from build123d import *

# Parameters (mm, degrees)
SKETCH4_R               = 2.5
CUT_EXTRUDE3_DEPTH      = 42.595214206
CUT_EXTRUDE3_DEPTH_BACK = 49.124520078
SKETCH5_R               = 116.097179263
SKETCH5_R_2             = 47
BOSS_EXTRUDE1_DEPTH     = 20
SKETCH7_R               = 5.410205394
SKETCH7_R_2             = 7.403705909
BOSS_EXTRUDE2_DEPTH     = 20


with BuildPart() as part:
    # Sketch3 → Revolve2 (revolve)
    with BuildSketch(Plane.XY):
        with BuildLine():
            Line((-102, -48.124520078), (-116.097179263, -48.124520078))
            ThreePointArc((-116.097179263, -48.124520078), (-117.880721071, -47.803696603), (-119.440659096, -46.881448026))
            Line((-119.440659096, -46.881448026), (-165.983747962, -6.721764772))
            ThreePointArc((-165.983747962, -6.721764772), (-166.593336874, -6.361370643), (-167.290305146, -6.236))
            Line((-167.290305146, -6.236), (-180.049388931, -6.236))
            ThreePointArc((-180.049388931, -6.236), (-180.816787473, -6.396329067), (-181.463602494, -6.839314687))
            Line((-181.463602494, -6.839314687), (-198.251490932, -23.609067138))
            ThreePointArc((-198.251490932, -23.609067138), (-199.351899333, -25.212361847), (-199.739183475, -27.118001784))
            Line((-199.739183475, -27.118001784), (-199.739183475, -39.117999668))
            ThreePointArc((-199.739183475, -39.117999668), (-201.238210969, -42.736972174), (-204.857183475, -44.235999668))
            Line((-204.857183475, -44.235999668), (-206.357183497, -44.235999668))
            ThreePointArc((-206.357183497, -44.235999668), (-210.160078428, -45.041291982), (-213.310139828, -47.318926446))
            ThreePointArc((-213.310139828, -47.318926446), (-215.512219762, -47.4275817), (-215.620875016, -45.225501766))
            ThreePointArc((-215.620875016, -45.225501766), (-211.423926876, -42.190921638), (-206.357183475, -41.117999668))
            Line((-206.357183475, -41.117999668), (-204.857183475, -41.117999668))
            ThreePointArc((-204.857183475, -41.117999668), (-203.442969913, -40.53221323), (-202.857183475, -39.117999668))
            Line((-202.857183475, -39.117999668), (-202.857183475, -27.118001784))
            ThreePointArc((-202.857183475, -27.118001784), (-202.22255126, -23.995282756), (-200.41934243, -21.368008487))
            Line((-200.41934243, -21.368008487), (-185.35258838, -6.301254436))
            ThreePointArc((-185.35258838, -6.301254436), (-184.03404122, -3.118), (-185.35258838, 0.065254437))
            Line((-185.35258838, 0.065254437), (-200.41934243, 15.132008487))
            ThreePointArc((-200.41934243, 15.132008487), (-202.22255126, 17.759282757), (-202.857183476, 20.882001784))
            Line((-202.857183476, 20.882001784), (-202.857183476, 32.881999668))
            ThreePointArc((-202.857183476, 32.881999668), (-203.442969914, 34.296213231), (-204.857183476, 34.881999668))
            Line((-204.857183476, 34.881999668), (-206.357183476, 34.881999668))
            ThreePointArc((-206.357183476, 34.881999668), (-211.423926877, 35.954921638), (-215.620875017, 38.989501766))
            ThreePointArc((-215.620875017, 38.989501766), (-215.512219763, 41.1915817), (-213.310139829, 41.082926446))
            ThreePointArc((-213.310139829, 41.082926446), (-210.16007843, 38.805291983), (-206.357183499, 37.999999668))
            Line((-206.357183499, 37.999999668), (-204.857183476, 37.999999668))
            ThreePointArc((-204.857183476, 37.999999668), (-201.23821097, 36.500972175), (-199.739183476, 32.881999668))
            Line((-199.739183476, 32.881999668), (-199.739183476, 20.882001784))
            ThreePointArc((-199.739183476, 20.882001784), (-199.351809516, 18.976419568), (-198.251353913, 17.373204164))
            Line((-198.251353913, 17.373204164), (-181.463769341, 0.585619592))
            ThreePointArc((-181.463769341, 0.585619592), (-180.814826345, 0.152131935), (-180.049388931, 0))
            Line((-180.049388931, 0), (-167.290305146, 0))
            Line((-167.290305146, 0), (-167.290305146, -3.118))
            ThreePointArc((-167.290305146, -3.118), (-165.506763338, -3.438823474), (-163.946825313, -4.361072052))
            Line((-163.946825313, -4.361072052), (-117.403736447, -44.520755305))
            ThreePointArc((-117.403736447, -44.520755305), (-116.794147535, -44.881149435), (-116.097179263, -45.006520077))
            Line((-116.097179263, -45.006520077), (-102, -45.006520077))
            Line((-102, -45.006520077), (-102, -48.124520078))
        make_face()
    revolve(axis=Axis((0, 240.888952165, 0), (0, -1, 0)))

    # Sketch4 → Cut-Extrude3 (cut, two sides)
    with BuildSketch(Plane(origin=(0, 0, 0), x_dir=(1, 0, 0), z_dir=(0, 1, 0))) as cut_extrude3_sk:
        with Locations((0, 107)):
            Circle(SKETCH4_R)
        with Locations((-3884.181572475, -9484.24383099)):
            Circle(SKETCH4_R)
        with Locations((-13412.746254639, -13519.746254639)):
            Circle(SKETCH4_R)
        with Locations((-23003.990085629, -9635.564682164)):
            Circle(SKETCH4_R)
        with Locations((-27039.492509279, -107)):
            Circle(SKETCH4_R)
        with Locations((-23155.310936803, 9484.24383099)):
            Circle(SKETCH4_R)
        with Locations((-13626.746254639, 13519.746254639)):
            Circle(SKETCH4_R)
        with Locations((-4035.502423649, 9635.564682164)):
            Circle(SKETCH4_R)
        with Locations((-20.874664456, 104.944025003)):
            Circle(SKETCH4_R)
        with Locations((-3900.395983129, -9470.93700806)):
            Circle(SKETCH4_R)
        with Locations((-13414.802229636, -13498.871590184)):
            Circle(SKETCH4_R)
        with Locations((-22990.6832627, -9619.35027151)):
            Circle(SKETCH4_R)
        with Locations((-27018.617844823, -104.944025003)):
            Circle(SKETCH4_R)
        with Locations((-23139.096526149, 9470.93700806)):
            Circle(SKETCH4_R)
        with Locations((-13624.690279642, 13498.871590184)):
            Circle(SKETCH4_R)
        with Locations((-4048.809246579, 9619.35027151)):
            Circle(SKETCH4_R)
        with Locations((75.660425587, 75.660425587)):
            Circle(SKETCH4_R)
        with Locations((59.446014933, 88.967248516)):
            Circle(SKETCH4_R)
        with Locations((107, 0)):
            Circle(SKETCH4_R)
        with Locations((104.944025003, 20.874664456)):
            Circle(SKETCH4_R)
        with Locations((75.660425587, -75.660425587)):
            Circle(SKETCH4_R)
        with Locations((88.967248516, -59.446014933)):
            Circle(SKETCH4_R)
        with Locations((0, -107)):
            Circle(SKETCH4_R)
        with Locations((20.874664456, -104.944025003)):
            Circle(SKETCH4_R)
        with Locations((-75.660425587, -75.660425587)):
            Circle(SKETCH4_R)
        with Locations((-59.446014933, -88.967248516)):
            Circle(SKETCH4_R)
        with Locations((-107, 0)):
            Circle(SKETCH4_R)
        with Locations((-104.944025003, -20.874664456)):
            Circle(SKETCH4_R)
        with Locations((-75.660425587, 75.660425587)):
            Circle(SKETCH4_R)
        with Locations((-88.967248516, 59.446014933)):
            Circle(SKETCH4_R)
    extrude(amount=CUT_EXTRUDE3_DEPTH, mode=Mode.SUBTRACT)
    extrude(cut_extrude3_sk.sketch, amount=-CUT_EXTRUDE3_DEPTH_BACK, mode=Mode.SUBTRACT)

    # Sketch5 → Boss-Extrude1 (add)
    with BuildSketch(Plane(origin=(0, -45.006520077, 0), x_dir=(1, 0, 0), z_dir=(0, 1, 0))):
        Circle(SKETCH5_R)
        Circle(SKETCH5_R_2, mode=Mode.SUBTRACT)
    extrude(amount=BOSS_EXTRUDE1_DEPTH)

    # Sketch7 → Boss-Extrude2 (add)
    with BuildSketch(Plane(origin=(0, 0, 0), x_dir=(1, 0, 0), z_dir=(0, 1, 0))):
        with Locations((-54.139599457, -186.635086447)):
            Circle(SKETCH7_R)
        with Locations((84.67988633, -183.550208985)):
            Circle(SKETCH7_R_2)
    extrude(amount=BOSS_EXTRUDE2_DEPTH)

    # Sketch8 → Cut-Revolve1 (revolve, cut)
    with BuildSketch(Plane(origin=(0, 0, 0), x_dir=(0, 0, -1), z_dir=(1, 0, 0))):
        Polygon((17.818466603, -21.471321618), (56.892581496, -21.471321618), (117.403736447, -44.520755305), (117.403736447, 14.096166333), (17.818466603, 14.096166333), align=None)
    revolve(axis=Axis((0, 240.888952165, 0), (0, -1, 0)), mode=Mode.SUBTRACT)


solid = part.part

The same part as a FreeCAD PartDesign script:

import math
import FreeCAD as App
import Part
import Sketcher
from FreeCAD import Vector

doc = App.newDocument("Part")
body = doc.addObject("PartDesign::Body", "Body")

sketch1 = body.newObject("Sketcher::SketchObject", "Sketch")
sketch1.AttachmentSupport = (doc.getObject("XY_Plane"), [""])
sketch1.MapMode = "FlatFace"
sketch1.addGeometry([
    Part.LineSegment(Vector(-116.1, -48.1, 0), Vector(-102, -48.1, 0)),
    Part.LineSegment(Vector(-102, -48.1, 0), Vector(-102, -45, 0)),
    Part.LineSegment(Vector(-102, -45, 0), Vector(-116.1, -45, 0)),
    Part.ArcOfCircle(Part.Circle(Vector(-116.1, -43, 0), Vector(0, 0, 1), 2), math.radians(-131), math.radians(-90)),
    Part.LineSegment(Vector(-117.4, -44.5, 0), Vector(-163.9, -4.4, 0)),
    Part.ArcOfCircle(Part.Circle(Vector(-167.3, -8.2, 0), Vector(0, 0, 1), 5.1), math.radians(49), math.radians(90)),
    Part.LineSegment(Vector(-167.3, -3.1, 0), Vector(-167.3, 0, 0)),
    Part.LineSegment(Vector(-167.3, 0, 0), Vector(-180, 0, 0)),
    Part.ArcOfCircle(Part.Circle(Vector(-180, 2, 0), Vector(0, 0, 1), 2), math.radians(-135), math.radians(-90)),
    Part.LineSegment(Vector(-181.5, 0.6, 0), Vector(-198.3, 17.4, 0)),
    Part.ArcOfCircle(Part.Circle(Vector(-194.9, 20.9, 0), Vector(0, 0, 1), 4.9), math.radians(-180), math.radians(-134)),
    Part.LineSegment(Vector(-199.7, 20.9, 0), Vector(-199.7, 32.9, 0)),
    Part.ArcOfCircle(Part.Circle(Vector(-204.9, 32.9, 0), Vector(0, 0, 1), 5.1), math.radians(0), math.radians(90)),
    Part.LineSegment(Vector(-204.9, 38, 0), Vector(-206.4, 38, 0)),
    Part.ArcOfCircle(Part.Circle(Vector(-206.4, 47.4, 0), Vector(0, 0, 1), 9.4), math.radians(-138), math.radians(-90)),
    Part.ArcOfCircle(Part.Circle(Vector(-214.5, 40, 0), Vector(0, 0, 1), 1.6), math.radians(42), math.radians(222)),
    Part.ArcOfCircle(Part.Circle(Vector(-206.4, 47.4, 0), Vector(0, 0, 1), 12.5), math.radians(-138), math.radians(-90)),
    Part.LineSegment(Vector(-206.4, 34.9, 0), Vector(-204.9, 34.9, 0)),
    Part.ArcOfCircle(Part.Circle(Vector(-204.9, 32.9, 0), Vector(0, 0, 1), 2), math.radians(0), math.radians(90)),
    Part.LineSegment(Vector(-202.9, 32.9, 0), Vector(-202.9, 20.9, 0)),
    Part.ArcOfCircle(Part.Circle(Vector(-194.9, 20.9, 0), Vector(0, 0, 1), 8), math.radians(180), math.radians(226)),
    Part.LineSegment(Vector(-200.4, 15.1, 0), Vector(-185.4, 0.1, 0)),
    Part.ArcOfCircle(Part.Circle(Vector(-188.5, -3.1, 0), Vector(0, 0, 1), 4.5), math.radians(-45), math.radians(45)),
    Part.LineSegment(Vector(-185.4, -6.3, 0), Vector(-200.4, -21.4, 0)),
    Part.ArcOfCircle(Part.Circle(Vector(-194.9, -27.1, 0), Vector(0, 0, 1), 8), math.radians(134), math.radians(180)),
    Part.LineSegment(Vector(-202.9, -27.1, 0), Vector(-202.9, -39.1, 0)),
    Part.ArcOfCircle(Part.Circle(Vector(-204.9, -39.1, 0), Vector(0, 0, 1), 2), math.radians(-90), math.radians(0)),
    Part.LineSegment(Vector(-204.9, -41.1, 0), Vector(-206.4, -41.1, 0)),
    Part.ArcOfCircle(Part.Circle(Vector(-206.4, -53.6, 0), Vector(0, 0, 1), 12.5), math.radians(90), math.radians(138)),
    Part.ArcOfCircle(Part.Circle(Vector(-214.5, -46.3, 0), Vector(0, 0, 1), 1.6), math.radians(138), math.radians(318)),
    Part.ArcOfCircle(Part.Circle(Vector(-206.4, -53.6, 0), Vector(0, 0, 1), 9.4), math.radians(90), math.radians(138)),
    Part.LineSegment(Vector(-206.4, -44.2, 0), Vector(-204.9, -44.2, 0)),
    Part.ArcOfCircle(Part.Circle(Vector(-204.9, -39.1, 0), Vector(0, 0, 1), 5.1), math.radians(-90), math.radians(0)),
    Part.LineSegment(Vector(-199.7, -39.1, 0), Vector(-199.7, -27.1, 0)),
    Part.ArcOfCircle(Part.Circle(Vector(-194.9, -27.1, 0), Vector(0, 0, 1), 4.9), math.radians(134), math.radians(180)),
    Part.LineSegment(Vector(-198.3, -23.6, 0), Vector(-181.5, -6.8, 0)),
    Part.ArcOfCircle(Part.Circle(Vector(-180, -8.2, 0), Vector(0, 0, 1), 2), math.radians(90), math.radians(136)),
    Part.LineSegment(Vector(-180, -6.2, 0), Vector(-167.3, -6.2, 0)),
    Part.ArcOfCircle(Part.Circle(Vector(-167.3, -8.2, 0), Vector(0, 0, 1), 2), math.radians(49), math.radians(90)),
    Part.LineSegment(Vector(-166, -6.7, 0), Vector(-119.4, -46.9, 0)),
    Part.ArcOfCircle(Part.Circle(Vector(-116.1, -43, 0), Vector(0, 0, 1), 5.1), math.radians(-131), math.radians(-90)),
], False)
sketch1.addConstraint([
    Sketcher.Constraint("Coincident", 0, 2, 1, 1),
    Sketcher.Constraint("Coincident", 1, 2, 2, 1),
    Sketcher.Constraint("Tangent", 2, 2, 3, 2),
    Sketcher.Constraint("Tangent", 3, 1, 4, 1),
    Sketcher.Constraint("Tangent", 4, 2, 5, 1),
    Sketcher.Constraint("Coincident", 5, 2, 6, 1),
    Sketcher.Constraint("Coincident", 6, 2, 7, 1),
    Sketcher.Constraint("Coincident", 7, 2, 8, 2),
    Sketcher.Constraint("Coincident", 8, 1, 9, 1),
    Sketcher.Constraint("Coincident", 9, 2, 10, 2),
    Sketcher.Constraint("Coincident", 10, 1, 11, 1),
    Sketcher.Constraint("Tangent", 11, 2, 12, 1),
    Sketcher.Constraint("Tangent", 12, 2, 13, 1),
    Sketcher.Constraint("Tangent", 13, 2, 14, 2),
    Sketcher.Constraint("Tangent", 14, 1, 15, 1),
    Sketcher.Constraint("Tangent", 15, 2, 16, 1),
    Sketcher.Constraint("Tangent", 16, 2, 17, 1),
    Sketcher.Constraint("Tangent", 17, 2, 18, 2),
    Sketcher.Constraint("Tangent", 18, 1, 19, 1),
    Sketcher.Constraint("Tangent", 19, 2, 20, 1),
    Sketcher.Constraint("Coincident", 20, 2, 21, 1),
    Sketcher.Constraint("Tangent", 21, 2, 22, 2),
    Sketcher.Constraint("Tangent", 22, 1, 23, 1),
    Sketcher.Constraint("Coincident", 23, 2, 24, 1),
    Sketcher.Constraint("Tangent", 24, 2, 25, 1),
    Sketcher.Constraint("Tangent", 25, 2, 26, 2),
    Sketcher.Constraint("Tangent", 26, 1, 27, 1),
    Sketcher.Constraint("Tangent", 27, 2, 28, 1),
    Sketcher.Constraint("Tangent", 28, 2, 29, 1),
    Sketcher.Constraint("Tangent", 29, 2, 30, 2),
    Sketcher.Constraint("Tangent", 30, 1, 31, 1),
    Sketcher.Constraint("Tangent", 31, 2, 32, 1),
    Sketcher.Constraint("Tangent", 32, 2, 33, 1),
    Sketcher.Constraint("Tangent", 33, 2, 34, 2),
    Sketcher.Constraint("Coincident", 34, 1, 35, 1),
    Sketcher.Constraint("Coincident", 35, 2, 36, 2),
    Sketcher.Constraint("Coincident", 36, 1, 37, 1),
    Sketcher.Constraint("Tangent", 37, 2, 38, 2),
    Sketcher.Constraint("Tangent", 38, 1, 39, 1),
    Sketcher.Constraint("Tangent", 39, 2, 40, 1),
    Sketcher.Constraint("Tangent", 40, 2, 0, 1),
    Sketcher.Constraint("Horizontal", 0),
    Sketcher.Constraint("Vertical", 1),
    Sketcher.Constraint("Horizontal", 2),
    Sketcher.Constraint("Vertical", 6),
    Sketcher.Constraint("Horizontal", 7),
    Sketcher.Constraint("Vertical", 11),
    Sketcher.Constraint("Horizontal", 13),
    Sketcher.Constraint("Horizontal", 17),
    Sketcher.Constraint("Vertical", 19),
    Sketcher.Constraint("Vertical", 25),
    Sketcher.Constraint("Horizontal", 27),
    Sketcher.Constraint("Horizontal", 31),
    Sketcher.Constraint("Vertical", 33),
    Sketcher.Constraint("Horizontal", 37),
    Sketcher.Constraint("Coincident", 16, 3, 14, 3),
    Sketcher.Constraint("Coincident", 18, 3, 12, 3),
    Sketcher.Constraint("Coincident", 30, 3, 28, 3),
    Sketcher.Constraint("Coincident", 32, 3, 26, 3),
    Sketcher.Constraint("Coincident", 34, 3, 24, 3),
    Sketcher.Constraint("Coincident", 38, 3, 5, 3),
    Sketcher.Constraint("Coincident", 40, 3, 3, 3),
    Sketcher.Constraint("Equal", 3, 8),
    Sketcher.Constraint("Equal", 5, 12),
    Sketcher.Constraint("Equal", 8, 18),
    Sketcher.Constraint("Equal", 20, 24),
    Sketcher.Constraint("Equal", 18, 26),
    Sketcher.Constraint("Equal", 16, 28),
    Sketcher.Constraint("Equal", 15, 29),
    Sketcher.Constraint("Equal", 10, 34),
    Sketcher.Constraint("Equal", 26, 36),
    Sketcher.Constraint("Equal", 36, 38),
    Sketcher.Constraint("Equal", 32, 40),
    Sketcher.Constraint("PointOnObject", 6, 2, -1),
    Sketcher.Constraint("Parallel", 9, 21),
    Sketcher.Constraint("Perpendicular", 21, 23),
    Sketcher.Constraint("Horizontal", 22, 3, 5, 2),
    Sketcher.Constraint("Horizontal", 10, 1, 19, 2),
    Sketcher.Constraint("Vertical", 20, 3, 24, 3),
    Sketcher.Constraint("Vertical", 16, 3, 28, 3),
    Sketcher.Constraint("Vertical", 15, 3, 29, 3),
    Sketcher.Constraint("Vertical", 38, 3, 5, 2),
    Sketcher.Constraint("Vertical", 21, 2, 22, 1),
    Sketcher.Constraint("Vertical", 20, 2, 23, 2),
    Sketcher.Constraint("Vertical", 7, 2, 36, 1),
    Sketcher.Constraint("Equal", 1, 6),
    Sketcher.Constraint("Equal", 19, 25),
    Sketcher.Constraint("Radius", 3, 2.0),
    Sketcher.Constraint("Radius", 20, 8.000002),
    Sketcher.Constraint("Radius", 16, 12.5),
    Sketcher.Constraint("DistanceX", 13, 2, 13, 1, 1.5),
    Sketcher.Constraint("DistanceX", 0, 2, -1, 1, 102.0),
    Sketcher.Constraint("DistanceY", -1, 1, 12, 2, 38.0),
    Sketcher.Constraint("Radius", 5, 5.118),
    Sketcher.Constraint("Radius", 22, 4.501802),
    Sketcher.Constraint("DistanceY", -1, 1, 20, 3, 20.881999),
    Sketcher.Constraint("DistanceX", 36, 3, -1, 1, 180.032002),
    Sketcher.Constraint("DistanceX", 0, 1, 0, 2, 14.097179),
    Sketcher.Constraint("DistanceY", -1, 1, 15, 2, 38.989502),
    Sketcher.Constraint("Distance", 9, 23.74123),
    Sketcher.Constraint("Distance", 35, 23.728839),
    Sketcher.Constraint("DistanceX", 7, 2, 7, 1, 12.759084),
    Sketcher.Constraint("DistanceY", 3, 3, -1, 1, 43.00652),
    Sketcher.Constraint("DistanceX", 10, 3, -1, 1, 194.857182),
    Sketcher.Constraint("DistanceY", -1, 1, 10, 3, 20.882269),
    Sketcher.Constraint("DistanceX", 7, 2, -1, 1, 180.049389),
    Sketcher.Constraint("DistanceX", 8, 1, -1, 1, 181.463769),
    Sketcher.Constraint("DistanceY", -1, 1, 20, 2, 15.132008),
    Sketcher.Constraint("DistanceX", 34, 1, -1, 1, 198.251491),
])
revolution = body.newObject("PartDesign::Revolution", "Revolution")
revolution.Profile = sketch1
revolution.ReferenceAxis = (sketch1, ["V_Axis"])
revolution.Angle = 360

sketch2 = body.newObject("Sketcher::SketchObject", "Sketch001")
sketch2.AttachmentSupport = (doc.getObject("XZ_Plane"), [""])
sketch2.MapMode = "FlatFace"
sketch2.addGeometry([
    Part.Circle(Vector(0, -107, 0), Vector(0, 0, 1), 2.5),
    Part.Circle(Vector(-3884.2, 9484.2, 0), Vector(0, 0, 1), 2.5),
    Part.Circle(Vector(-13412.7, 13519.7, 0), Vector(0, 0, 1), 2.5),
    Part.Circle(Vector(-23004, 9635.6, 0), Vector(0, 0, 1), 2.5),
    Part.Circle(Vector(-27039.5, 107, 0), Vector(0, 0, 1), 2.5),
    Part.Circle(Vector(-23155.3, -9484.2, 0), Vector(0, 0, 1), 2.5),
    Part.Circle(Vector(-13626.7, -13519.7, 0), Vector(0, 0, 1), 2.5),
    Part.Circle(Vector(-4035.5, -9635.6, 0), Vector(0, 0, 1), 2.5),
    Part.Circle(Vector(-20.9, -104.9, 0), Vector(0, 0, 1), 2.5),
    Part.Circle(Vector(-3900.4, 9470.9, 0), Vector(0, 0, 1), 2.5),
    Part.Circle(Vector(-13414.8, 13498.9, 0), Vector(0, 0, 1), 2.5),
    Part.Circle(Vector(-22990.7, 9619.4, 0), Vector(0, 0, 1), 2.5),
    Part.Circle(Vector(-27018.6, 104.9, 0), Vector(0, 0, 1), 2.5),
    Part.Circle(Vector(-23139.1, -9470.9, 0), Vector(0, 0, 1), 2.5),
    Part.Circle(Vector(-13624.7, -13498.9, 0), Vector(0, 0, 1), 2.5),
    Part.Circle(Vector(-4048.8, -9619.4, 0), Vector(0, 0, 1), 2.5),
    Part.Circle(Vector(75.7, -75.7, 0), Vector(0, 0, 1), 2.5),
    Part.Circle(Vector(59.4, -89, 0), Vector(0, 0, 1), 2.5),
    Part.Circle(Vector(107, 0, 0), Vector(0, 0, 1), 2.5),
    Part.Circle(Vector(104.9, -20.9, 0), Vector(0, 0, 1), 2.5),
    Part.Circle(Vector(75.7, 75.7, 0), Vector(0, 0, 1), 2.5),
    Part.Circle(Vector(89, 59.4, 0), Vector(0, 0, 1), 2.5),
    Part.Circle(Vector(0, 107, 0), Vector(0, 0, 1), 2.5),
    Part.Circle(Vector(20.9, 104.9, 0), Vector(0, 0, 1), 2.5),
    Part.Circle(Vector(-75.7, 75.7, 0), Vector(0, 0, 1), 2.5),
    Part.Circle(Vector(-59.4, 89, 0), Vector(0, 0, 1), 2.5),
    Part.Circle(Vector(-107, 0, 0), Vector(0, 0, 1), 2.5),
    Part.Circle(Vector(-104.9, 20.9, 0), Vector(0, 0, 1), 2.5),
    Part.Circle(Vector(-75.7, -75.7, 0), Vector(0, 0, 1), 2.5),
    Part.Circle(Vector(-89, -59.4, 0), Vector(0, 0, 1), 2.5),
], False)
sketch2.addConstraint([
    Sketcher.Constraint("Equal", 0, 1),
    Sketcher.Constraint("Equal", 1, 2),
    Sketcher.Constraint("Equal", 2, 3),
    Sketcher.Constraint("Equal", 3, 4),
    Sketcher.Constraint("Equal", 4, 5),
    Sketcher.Constraint("Equal", 5, 6),
    Sketcher.Constraint("Equal", 6, 7),
    Sketcher.Constraint("Equal", 7, 8),
    Sketcher.Constraint("Equal", 8, 9),
    Sketcher.Constraint("Equal", 9, 10),
    Sketcher.Constraint("Equal", 10, 11),
    Sketcher.Constraint("Equal", 11, 12),
    Sketcher.Constraint("Equal", 12, 13),
    Sketcher.Constraint("Equal", 13, 14),
    Sketcher.Constraint("Equal", 14, 15),
    Sketcher.Constraint("Equal", 15, 16),
    Sketcher.Constraint("Equal", 16, 17),
    Sketcher.Constraint("Equal", 17, 18),
    Sketcher.Constraint("Equal", 18, 19),
    Sketcher.Constraint("Equal", 19, 20),
    Sketcher.Constraint("Equal", 20, 21),
    Sketcher.Constraint("Equal", 21, 22),
    Sketcher.Constraint("Equal", 22, 23),
    Sketcher.Constraint("Equal", 23, 24),
    Sketcher.Constraint("Equal", 24, 25),
    Sketcher.Constraint("Equal", 25, 26),
    Sketcher.Constraint("Equal", 26, 27),
    Sketcher.Constraint("Equal", 27, 28),
    Sketcher.Constraint("Equal", 28, 29),
    Sketcher.Constraint("Symmetric", 0, 3, 22, 3, -1, 1),
    Sketcher.Constraint("Symmetric", 8, 3, 23, 3, -1, 1),
    Sketcher.Constraint("Symmetric", 16, 3, 24, 3, -1, 1),
    Sketcher.Constraint("Symmetric", 17, 3, 25, 3, -1, 1),
    Sketcher.Constraint("Symmetric", 18, 3, 26, 3, -1, 1),
    Sketcher.Constraint("Symmetric", 19, 3, 27, 3, -1, 1),
    Sketcher.Constraint("Symmetric", 20, 3, 28, 3, -1, 1),
    Sketcher.Constraint("Symmetric", 21, 3, 29, 3, -1, 1),
    Sketcher.Constraint("Symmetric", 20, 3, 24, 3, -2),
    Sketcher.Constraint("PointOnObject", 0, 3, -2),
    Sketcher.Constraint("PointOnObject", 18, 3, -1),
    Sketcher.Constraint("Horizontal", 4, 3, 22, 3),
    Sketcher.Constraint("Horizontal", 12, 3, 23, 3),
    Sketcher.Constraint("Diameter", 0, 5.0),
    Sketcher.Constraint("DistanceY", 0, 3, -1, 1, 107.0),
    Sketcher.Constraint("DistanceX", -1, 1, 18, 3, 107.0),
    Sketcher.Constraint("DistanceX", 1, 3, 16, 3, 3959.841998),
    Sketcher.Constraint("DistanceX", 9, 3, 17, 3, 3959.841998),
    Sketcher.Constraint("DistanceY", 8, 3, 16, 3, 29.283599),
    Sketcher.Constraint("DistanceX", 16, 3, 19, 3, 29.283599),
    Sketcher.Constraint("DistanceY", -1, 1, 1, 3, 9484.243831),
    Sketcher.Constraint("DistanceX", 4, 3, -1, 1, 27039.492509),
    Sketcher.Constraint("DistanceY", 5, 3, -1, 1, 9484.243831),
    Sketcher.Constraint("DistanceY", -1, 1, 9, 3, 9470.937008),
    Sketcher.Constraint("DistanceX", 10, 3, -1, 1, 13414.80223),
    Sketcher.Constraint("DistanceY", -1, 1, 10, 3, 13498.87159),
    Sketcher.Constraint("DistanceY", -1, 1, 11, 3, 9619.350272),
    Sketcher.Constraint("DistanceY", 13, 3, -1, 1, 9470.937008),
    Sketcher.Constraint("DistanceX", 14, 3, -1, 1, 13624.69028),
    Sketcher.Constraint("DistanceY", 14, 3, -1, 1, 13498.87159),
    Sketcher.Constraint("DistanceY", 15, 3, -1, 1, 9619.350272),
    Sketcher.Constraint("DistanceY", 17, 3, -1, 1, 88.967249),
    Sketcher.Constraint("DistanceX", -1, 1, 21, 3, 88.967249),
    Sketcher.Constraint("DistanceX", 3, 3, 2, 3, 9591.243831),
    Sketcher.Constraint("DistanceY", 1, 3, 3, 3, 151.320851),
    Sketcher.Constraint("DistanceX", 5, 3, 3, 3, 151.320851),
    Sketcher.Constraint("DistanceX", 3, 3, 6, 3, 9377.243831),
    Sketcher.Constraint("DistanceX", 6, 3, 7, 3, 9591.243831),
    Sketcher.Constraint("DistanceX", 7, 3, 1, 3, 151.320851),
    Sketcher.Constraint("DistanceY", 7, 3, 5, 3, 151.320851),
    Sketcher.Constraint("DistanceX", 1, 3, 8, 3, 3863.306908),
    Sketcher.Constraint("DistanceY", 8, 3, 2, 3, 13624.69028),
    Sketcher.Constraint("DistanceY", 6, 3, 8, 3, 13414.80223),
    Sketcher.Constraint("DistanceX", 9, 3, 1, 3, 16.214411),
    Sketcher.Constraint("DistanceX", 11, 3, 2, 3, 9577.937008),
    Sketcher.Constraint("DistanceX", 12, 3, 5, 3, 3863.306908),
    Sketcher.Constraint("DistanceX", 5, 3, 13, 3, 16.214411),
    Sketcher.Constraint("DistanceX", 6, 3, 15, 3, 9577.937008),
    Sketcher.Constraint("DistanceY", 16, 3, 19, 3, 54.785761),
    Sketcher.Constraint("DistanceY", 19, 3, 20, 3, 96.53509),
    Sketcher.Constraint("DistanceY", 21, 3, 20, 3, 16.214411),
    Sketcher.Constraint("DistanceX", 23, 3, 20, 3, 54.785761),
])
pocket1 = body.newObject("PartDesign::Pocket", "Pocket")
pocket1.Profile = sketch2
pocket1.Type = "ThroughAll"
pocket1.Midplane = True

sketch3 = body.newObject("Sketcher::SketchObject", "Sketch002")
sketch3.AttachmentSupport = (doc.getObject("XZ_Plane"), [""])
sketch3.MapMode = "FlatFace"
sketch3.AttachmentOffset = App.Placement(Vector(0, 0, 45.00652), App.Rotation())
sketch3.addGeometry([
    Part.Circle(Vector(0, 0, 0), Vector(0, 0, 1), 116),
    Part.Circle(Vector(0, 0, 0), Vector(0, 0, 1), 47),
], False)
sketch3.addConstraint([
    Sketcher.Constraint("Coincident", 0, 3, -1, 1),
    Sketcher.Constraint("Coincident", 1, 3, -1, 1),
    Sketcher.Constraint("Diameter", 1, 94.0),
    Sketcher.Constraint("Diameter", 0, 232.194359),
])
pad1 = body.newObject("PartDesign::Pad", "Pad")
pad1.Profile = sketch3
pad1.Length = 20
pad1.Reversed = True

sketch4 = body.newObject("Sketcher::SketchObject", "Sketch003")
sketch4.AttachmentSupport = (doc.getObject("XZ_Plane"), [""])
sketch4.MapMode = "FlatFace"
sketch4.addGeometry([
    Part.Circle(Vector(-54, 187, 0), Vector(0, 0, 1), 5),
    Part.Circle(Vector(85, 184, 0), Vector(0, 0, 1), 7),
], False)
sketch4.addConstraint([
    Sketcher.Constraint("Diameter", 0, 10.820411),
    Sketcher.Constraint("Diameter", 1, 14.807412),
    Sketcher.Constraint("DistanceX", 0, 3, -1, 1, 54.139599),
    Sketcher.Constraint("DistanceY", -1, 1, 1, 3, 183.550209),
    Sketcher.Constraint("DistanceY", -1, 1, 0, 3, 186.635086),
    Sketcher.Constraint("DistanceX", -1, 1, 1, 3, 84.679886),
])
pad2 = body.newObject("PartDesign::Pad", "Pad001")
pad2.Profile = sketch4
pad2.Length = 20
pad2.Reversed = True

sketch5 = body.newObject("Sketcher::SketchObject", "Sketch004")
sketch5.AttachmentSupport = (doc.getObject("YZ_Plane"), [""])
sketch5.MapMode = "FlatFace"
sketch5.addGeometry([
    Part.LineSegment(Vector(-21, -18, 0), Vector(-21, -57, 0)),
    Part.LineSegment(Vector(-21, -57, 0), Vector(-45, -117, 0)),
    Part.LineSegment(Vector(-45, -117, 0), Vector(14, -117, 0)),
    Part.LineSegment(Vector(14, -117, 0), Vector(14, -18, 0)),
    Part.LineSegment(Vector(14, -18, 0), Vector(-21, -18, 0)),
], False)
sketch5.addConstraint([
    Sketcher.Constraint("Coincident", 0, 2, 1, 1),
    Sketcher.Constraint("Coincident", 1, 2, 2, 1),
    Sketcher.Constraint("Coincident", 2, 2, 3, 1),
    Sketcher.Constraint("Coincident", 3, 2, 4, 1),
    Sketcher.Constraint("Coincident", 4, 2, 0, 1),
    Sketcher.Constraint("Vertical", 0),
    Sketcher.Constraint("Horizontal", 2),
    Sketcher.Constraint("Vertical", 3),
    Sketcher.Constraint("Horizontal", 4),
    Sketcher.Constraint("DistanceX", 2, 1, 2, 2, 58.616922),
    Sketcher.Constraint("DistanceY", 3, 1, 3, 2, 99.58527),
    Sketcher.Constraint("DistanceX", 4, 2, 4, 1, 35.567488),
    Sketcher.Constraint("DistanceY", 0, 2, 0, 1, 39.074115),
    Sketcher.Constraint("DistanceX", 0, 2, -1, 1, 21.471322),
    Sketcher.Constraint("DistanceY", 0, 2, -1, 1, 56.892581),
])
groove = body.newObject("PartDesign::Groove", "Groove")
groove.Profile = sketch5
groove.ReferenceAxis = (sketch5, ["H_Axis"])
groove.Angle = 360

doc.recompute()
